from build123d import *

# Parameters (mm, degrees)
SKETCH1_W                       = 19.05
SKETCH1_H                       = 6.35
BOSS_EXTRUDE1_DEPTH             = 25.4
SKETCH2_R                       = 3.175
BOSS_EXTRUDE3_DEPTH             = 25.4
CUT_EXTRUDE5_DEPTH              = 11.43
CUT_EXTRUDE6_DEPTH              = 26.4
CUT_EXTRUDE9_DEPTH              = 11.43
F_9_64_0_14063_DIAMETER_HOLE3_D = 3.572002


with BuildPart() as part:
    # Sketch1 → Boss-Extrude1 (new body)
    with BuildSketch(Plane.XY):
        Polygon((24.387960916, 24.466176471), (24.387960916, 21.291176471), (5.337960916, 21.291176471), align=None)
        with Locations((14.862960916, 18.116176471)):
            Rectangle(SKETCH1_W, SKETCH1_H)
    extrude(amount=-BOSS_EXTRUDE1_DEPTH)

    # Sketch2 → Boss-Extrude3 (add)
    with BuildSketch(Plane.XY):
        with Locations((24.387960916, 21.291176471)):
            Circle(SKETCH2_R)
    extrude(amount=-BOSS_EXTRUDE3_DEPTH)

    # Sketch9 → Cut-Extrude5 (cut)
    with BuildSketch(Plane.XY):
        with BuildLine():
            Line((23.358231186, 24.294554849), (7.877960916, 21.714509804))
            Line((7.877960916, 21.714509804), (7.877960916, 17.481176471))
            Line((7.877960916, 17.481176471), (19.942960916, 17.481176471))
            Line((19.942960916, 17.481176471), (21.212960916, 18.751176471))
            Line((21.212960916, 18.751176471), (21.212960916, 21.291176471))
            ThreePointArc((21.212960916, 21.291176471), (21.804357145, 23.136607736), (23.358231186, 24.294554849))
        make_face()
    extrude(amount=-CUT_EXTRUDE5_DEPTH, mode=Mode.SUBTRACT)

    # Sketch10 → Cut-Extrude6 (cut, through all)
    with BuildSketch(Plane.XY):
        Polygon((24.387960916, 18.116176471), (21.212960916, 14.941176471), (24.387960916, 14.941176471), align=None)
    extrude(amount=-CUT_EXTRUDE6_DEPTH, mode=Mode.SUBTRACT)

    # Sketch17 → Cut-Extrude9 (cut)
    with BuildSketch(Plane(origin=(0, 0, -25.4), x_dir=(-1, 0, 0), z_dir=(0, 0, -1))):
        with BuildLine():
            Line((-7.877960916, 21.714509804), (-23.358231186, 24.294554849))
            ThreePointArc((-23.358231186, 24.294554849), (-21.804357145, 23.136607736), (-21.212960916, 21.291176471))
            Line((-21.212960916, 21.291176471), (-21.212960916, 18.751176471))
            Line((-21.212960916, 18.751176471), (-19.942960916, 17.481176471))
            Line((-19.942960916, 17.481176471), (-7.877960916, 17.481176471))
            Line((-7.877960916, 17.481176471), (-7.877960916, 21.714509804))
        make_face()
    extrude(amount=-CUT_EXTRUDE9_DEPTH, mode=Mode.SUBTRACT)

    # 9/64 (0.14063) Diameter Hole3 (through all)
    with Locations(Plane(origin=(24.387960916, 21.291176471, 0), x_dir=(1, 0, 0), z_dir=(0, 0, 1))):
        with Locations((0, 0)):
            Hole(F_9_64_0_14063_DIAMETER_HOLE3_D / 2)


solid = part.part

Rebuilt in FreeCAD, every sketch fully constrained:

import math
import FreeCAD as App
import Part
import Sketcher
from FreeCAD import Vector
Q = App.Units.Quantity


def add_polygon(sketch, points):
    """Adds a closed chain of lines whose ends are joined by coincident constraints."""
    first, n = sketch.GeometryCount, len(points)
    for a, b in zip(points, points[1:] + points[:1]):
        sketch.addGeometry(Part.LineSegment(App.Vector(*a, 0), App.Vector(*b, 0)), False)
    for i in range(n):
        sketch.addConstraint(Sketcher.Constraint("Coincident", first + i, 2, first + (i + 1) % n, 1))

doc = App.newDocument("Part")
params = doc.addObject("Spreadsheet::Sheet", "Params")
for row, (alias, value) in enumerate([
    ("sketch1_width", "0.75 in"),
    ("sketch1_height", "0.25 in"),
    ("sketch1_height2", "0.375 in"),
    ("pad1_length", "1 in"),
    ("sketch2_diameter", "0.25 in"),
    ("pad2_length", "1 in"),
    ("sketch3_height", "0.1 in"),
    ("sketch3_radius", "0.125 in"),
    ("sketch3_width", "0.475 in"),
    ("pocket1_length", "0.45 in"),
    ("sketch4_width", "0.125 in"),
    ("sketch5_height", "0.1 in"),
    ("sketch5_radius", "0.125 in"),
    ("sketch5_width", "0.475 in"),
    ("pocket3_length", "0.45 in"),
    ("hole_diameter", "3.572002 mm"),
], start=1):
    params.set(f"A{row}", alias)
    params.set(f"B{row}", "=" + value)
    params.setAlias(f"B{row}", alias)

body = doc.addObject("PartDesign::Body", "Body")

# Sketch on XY plane
sketch1 = doc.addObject("Sketcher::SketchObject", "Sketch")
body.addObject(sketch1)
sketch1.AttachmentSupport = (doc.XY_Plane, [""])
sketch1.MapMode = "FlatFace"
add_polygon(sketch1, [(24, 15), (24, 24), (5, 21), (5, 15)])  # lines 0-3
sketch1.addConstraint(Sketcher.Constraint("Vertical", 0))
sketch1.addConstraint(Sketcher.Constraint("Vertical", 2))
sketch1.addConstraint(Sketcher.Constraint("Horizontal", 3))
sketch1.addConstraint(Sketcher.Constraint("DistanceX", 3, 1, 3, 2, Q("0.75 in")))
sketch1.addConstraint(Sketcher.Constraint("DistanceY", 2, 2, 2, 1, Q("0.25 in")))
sketch1.addConstraint(Sketcher.Constraint("DistanceY", 0, 1, 0, 2, Q("0.375 in")))
sketch1.addConstraint(Sketcher.Constraint("DistanceX", -1, 1, 0, 2, Q("24.387961 mm")))
sketch1.addConstraint(Sketcher.Constraint("DistanceY", -1, 1, 0, 2, Q("24.466176 mm")))
sketch1.setExpression("Constraints[7]", "Params.sketch1_width")
sketch1.setExpression("Constraints[8]", "Params.sketch1_height")
sketch1.setExpression("Constraints[9]", "Params.sketch1_height2")
pad1 = doc.addObject("PartDesign::Pad", "Pad")
body.addObject(pad1)
pad1.Profile = sketch1
pad1.setExpression("Length", "Params.pad1_length")
pad1.Reversed = True

# Sketch on XY plane
sketch2 = doc.addObject("Sketcher::SketchObject", "Sketch001")
body.addObject(sketch2)
sketch2.AttachmentSupport = (doc.XY_Plane, [""])
sketch2.MapMode = "FlatFace"
sketch2.addGeometry(Part.Circle(Vector(24.4, 21.3, 0), Vector(0, 0, 1), 3.2), False)
sketch2.addConstraint(Sketcher.Constraint("Diameter", 0, Q("0.25 in")))
sketch2.addConstraint(Sketcher.Constraint("DistanceX", -1, 1, 0, 3, Q("24.387961 mm")))
sketch2.addConstraint(Sketcher.Constraint("DistanceY", -1, 1, 0, 3, Q("21.291176 mm")))
sketch2.setExpression("Constraints[0]", "Params.sketch2_diameter")
pad2 = doc.addObject("PartDesign::Pad", "Pad001")
body.addObject(pad2)
pad2.Profile = sketch2
pad2.setExpression("Length", "Params.pad2_length")
pad2.Reversed = True

# Sketch on XY plane
sketch3 = doc.addObject("Sketcher::SketchObject", "Sketch002")
body.addObject(sketch3)
sketch3.AttachmentSupport = (doc.XY_Plane, [""])
sketch3.MapMode = "FlatFace"
sketch3.addGeometry(Part.LineSegment(Vector(23.4, 24.3, 0), Vector(7.9, 21.7, 0)), False)
sketch3.addGeometry(Part.LineSegment(Vector(7.9, 21.7, 0), Vector(7.9, 17.5, 0)), False)
sketch3.addGeometry(Part.LineSegment(Vector(7.9, 17.5, 0), Vector(19.9, 17.5, 0)), False)
sketch3.addGeometry(Part.LineSegment(Vector(19.9, 17.5, 0), Vector(21.2, 18.8, 0)), False)
sketch3.addGeometry(Part.LineSegment(Vector(21.2, 18.8, 0), Vector(21.2, 21.3, 0)), False)
sketch3.addGeometry(Part.ArcOfCircle(Part.Circle(Vector(24.4, 21.3, 0), Vector(0, 0, 1), 3.2), math.radians(109), math.radians(180)), False)
sketch3.addConstraint(Sketcher.Constraint("Coincident", 0, 2, 1, 1))
sketch3.addConstraint(Sketcher.Constraint("Coincident", 1, 2, 2, 1))
sketch3.addConstraint(Sketcher.Constraint("Coincident", 2, 2, 3, 1))
sketch3.addConstraint(Sketcher.Constraint("Coincident", 3, 2, 4, 1))
sketch3.addConstraint(Sketcher.Constraint("Tangent", 4, 2, 5, 2))
sketch3.addConstraint(Sketcher.Constraint("Coincident", 5, 1, 0, 1))
sketch3.addConstraint(Sketcher.Constraint("Vertical", 1))
sketch3.addConstraint(Sketcher.Constraint("Horizontal", 2))
sketch3.addConstraint(Sketcher.Constraint("Vertical", 4))
sketch3.addConstraint(Sketcher.Constraint("DistanceY", 4, 1, 4, 2, Q("0.1 in")))
sketch3.addConstraint(Sketcher.Constraint("Angle", 3, Q("45 deg")))
sketch3.addConstraint(Sketcher.Constraint("Radius", 5, Q("0.125 in")))
sketch3.addConstraint(Sketcher.Constraint("DistanceX", 2, 1, 2, 2, Q("0.475 in")))
sketch3.addConstraint(Sketcher.Constraint("DistanceX", 0, 2, 5, 3, Q("0.65 in")))
sketch3.addConstraint(Sketcher.Constraint("Distance", 0, Q("15.693801 mm")))
sketch3.addConstraint(Sketcher.Constraint("DistanceY", 1, 2, 1, 1, Q("4.233333 mm")))
sketch3.addConstraint(Sketcher.Constraint("DistanceX", -1, 1, 5, 3, Q("24.387961 mm")))
sketch3.addConstraint(Sketcher.Constraint("DistanceY", -1, 1, 0, 2, Q("21.71451 mm")))
sketch3.setExpression("Constraints[9]", "Params.sketch3_height")
sketch3.setExpression("Constraints[11]", "Params.sketch3_radius")
sketch3.setExpression("Constraints[12]", "Params.sketch3_width")
pocket1 = doc.addObject("PartDesign::Pocket", "Pocket")
body.addObject(pocket1)
pocket1.Profile = sketch3
pocket1.setExpression("Length", "Params.pocket1_length")

# Sketch on XY plane
sketch4 = doc.addObject("Sketcher::SketchObject", "Sketch003")
body.addObject(sketch4)
sketch4.AttachmentSupport = (doc.XY_Plane, [""])
sketch4.MapMode = "FlatFace"
add_polygon(sketch4, [(24.4, 18.1), (21.2, 14.9), (24.4, 14.9)])  # lines 0-2
sketch4.addConstraint(Sketcher.Constraint("Horizontal", 1))
sketch4.addConstraint(Sketcher.Constraint("Vertical", 2))
sketch4.addConstraint(Sketcher.Constraint("Equal", 1, 2))
sketch4.addConstraint(Sketcher.Constraint("DistanceX", 1, 1, 1, 2, Q("0.125 in")))
sketch4.addConstraint(Sketcher.Constraint("DistanceX", -1, 1, 0, 2, Q("21.212961 mm")))
sketch4.addConstraint(Sketcher.Constraint("DistanceY", -1, 1, 0, 2, Q("14.941176 mm")))
sketch4.setExpression("Constraints[6]", "Params.sketch4_width")
pocket2 = doc.addObject("PartDesign::Pocket", "Pocket001")
body.addObject(pocket2)
pocket2.Profile = sketch4
pocket2.Type = "ThroughAll"

# Sketch on XY plane
sketch5 = doc.addObject("Sketcher::SketchObject", "Sketch004")
body.addObject(sketch5)
sketch5.AttachmentSupport = (doc.XY_Plane, [""])
sketch5.MapMode = "FlatFace"
sketch5.AttachmentOffset = App.Placement(Vector(0, 0, -1 * 25.4), App.Rotation())
sketch5.addGeometry(Part.LineSegment(Vector(7.9, 21.7, 0), Vector(23.4, 24.3, 0)), False)
sketch5.addGeometry(Part.ArcOfCircle(Part.Circle(Vector(24.4, 21.3, 0), Vector(0, 0, 1), 3.2), math.radians(109), math.radians(180)), False)
sketch5.addGeometry(Part.LineSegment(Vector(21.2, 21.3, 0), Vector(21.2, 18.8, 0)), False)
sketch5.addGeometry(Part.LineSegment(Vector(21.2, 18.8, 0), Vector(19.9, 17.5, 0)), False)
sketch5.addGeometry(Part.LineSegment(Vector(19.9, 17.5, 0), Vector(7.9, 17.5, 0)), False)
sketch5.addGeometry(Part.LineSegment(Vector(7.9, 17.5, 0), Vector(7.9, 21.7, 0)), False)
sketch5.addConstraint(Sketcher.Constraint("Coincident", 0, 2, 1, 1))
sketch5.addConstraint(Sketcher.Constraint("Tangent", 1, 2, 2, 1))
sketch5.addConstraint(Sketcher.Constraint("Coincident", 2, 2, 3, 1))
sketch5.addConstraint(Sketcher.Constraint("Coincident", 3, 2, 4, 1))
sketch5.addConstraint(Sketcher.Constraint("Coincident", 4, 2, 5, 1))
sketch5.addConstraint(Sketcher.Constraint("Coincident", 5, 2, 0, 1))
sketch5.addConstraint(Sketcher.Constraint("Vertical", 2))
sketch5.addConstraint(Sketcher.Constraint("Horizontal", 4))
sketch5.addConstraint(Sketcher.Constraint("Vertical", 5))
sketch5.addConstraint(Sketcher.Constraint("DistanceY", 2, 2, 2, 1, Q("0.1 in")))
sketch5.addConstraint(Sketcher.Constraint("Angle", 3, Q("-135 deg")))
sketch5.addConstraint(Sketcher.Constraint("Radius", 1, Q("0.125 in")))
sketch5.addConstraint(Sketcher.Constraint("DistanceX", 4, 2, 4, 1, Q("0.475 in")))
sketch5.addConstraint(Sketcher.Constraint("DistanceX", 3, 2, 2, 2, Q("0.05 in")))
sketch5.addConstraint(Sketcher.Constraint("Distance", 0, Q("15.693801 mm")))
sketch5.addConstraint(Sketcher.Constraint("DistanceY", 5, 1, 5, 2, Q("4.233333 mm")))
sketch5.addConstraint(Sketcher.Constraint("DistanceX", -1, 1, 1, 3, Q("24.387961 mm")))
sketch5.addConstraint(Sketcher.Constraint("DistanceY", -1, 1, 5, 2, Q("21.71451 mm")))
sketch5.setExpression("Constraints[9]", "Params.sketch5_height")
sketch5.setExpression("Constraints[11]", "Params.sketch5_radius")
sketch5.setExpression("Constraints[12]", "Params.sketch5_width")
pocket3 = doc.addObject("PartDesign::Pocket", "Pocket002")
body.addObject(pocket3)
pocket3.Profile = sketch5
pocket3.setExpression("Length", "Params.pocket3_length")
pocket3.Reversed = True

# Sketch on XY plane
sketch6 = doc.addObject("Sketcher::SketchObject", "Sketch005")
body.addObject(sketch6)
sketch6.AttachmentSupport = (doc.XY_Plane, [""])
sketch6.MapMode = "FlatFace"
sketch6.addGeometry(Part.Circle(Vector(24.4, 21.3, 0), Vector(0, 0, 1), 1.8), False)
sketch6.addConstraint(Sketcher.Constraint("Diameter", 0, Q("3.572002 mm")))
sketch6.addConstraint(Sketcher.Constraint("DistanceX", -1, 1, 0, 3, Q("24.387961 mm")))
sketch6.addConstraint(Sketcher.Constraint("DistanceY", -1, 1, 0, 3, Q("21.291176 mm")))
doc.recompute()
hole = doc.addObject("PartDesign::Hole", "Hole")
body.addObject(hole)
hole.Profile = sketch6
hole.ThreadType = "None"
hole.setExpression("Diameter", "Params.hole_diameter")
hole.DepthType = "ThroughAll"

doc.recompute()
